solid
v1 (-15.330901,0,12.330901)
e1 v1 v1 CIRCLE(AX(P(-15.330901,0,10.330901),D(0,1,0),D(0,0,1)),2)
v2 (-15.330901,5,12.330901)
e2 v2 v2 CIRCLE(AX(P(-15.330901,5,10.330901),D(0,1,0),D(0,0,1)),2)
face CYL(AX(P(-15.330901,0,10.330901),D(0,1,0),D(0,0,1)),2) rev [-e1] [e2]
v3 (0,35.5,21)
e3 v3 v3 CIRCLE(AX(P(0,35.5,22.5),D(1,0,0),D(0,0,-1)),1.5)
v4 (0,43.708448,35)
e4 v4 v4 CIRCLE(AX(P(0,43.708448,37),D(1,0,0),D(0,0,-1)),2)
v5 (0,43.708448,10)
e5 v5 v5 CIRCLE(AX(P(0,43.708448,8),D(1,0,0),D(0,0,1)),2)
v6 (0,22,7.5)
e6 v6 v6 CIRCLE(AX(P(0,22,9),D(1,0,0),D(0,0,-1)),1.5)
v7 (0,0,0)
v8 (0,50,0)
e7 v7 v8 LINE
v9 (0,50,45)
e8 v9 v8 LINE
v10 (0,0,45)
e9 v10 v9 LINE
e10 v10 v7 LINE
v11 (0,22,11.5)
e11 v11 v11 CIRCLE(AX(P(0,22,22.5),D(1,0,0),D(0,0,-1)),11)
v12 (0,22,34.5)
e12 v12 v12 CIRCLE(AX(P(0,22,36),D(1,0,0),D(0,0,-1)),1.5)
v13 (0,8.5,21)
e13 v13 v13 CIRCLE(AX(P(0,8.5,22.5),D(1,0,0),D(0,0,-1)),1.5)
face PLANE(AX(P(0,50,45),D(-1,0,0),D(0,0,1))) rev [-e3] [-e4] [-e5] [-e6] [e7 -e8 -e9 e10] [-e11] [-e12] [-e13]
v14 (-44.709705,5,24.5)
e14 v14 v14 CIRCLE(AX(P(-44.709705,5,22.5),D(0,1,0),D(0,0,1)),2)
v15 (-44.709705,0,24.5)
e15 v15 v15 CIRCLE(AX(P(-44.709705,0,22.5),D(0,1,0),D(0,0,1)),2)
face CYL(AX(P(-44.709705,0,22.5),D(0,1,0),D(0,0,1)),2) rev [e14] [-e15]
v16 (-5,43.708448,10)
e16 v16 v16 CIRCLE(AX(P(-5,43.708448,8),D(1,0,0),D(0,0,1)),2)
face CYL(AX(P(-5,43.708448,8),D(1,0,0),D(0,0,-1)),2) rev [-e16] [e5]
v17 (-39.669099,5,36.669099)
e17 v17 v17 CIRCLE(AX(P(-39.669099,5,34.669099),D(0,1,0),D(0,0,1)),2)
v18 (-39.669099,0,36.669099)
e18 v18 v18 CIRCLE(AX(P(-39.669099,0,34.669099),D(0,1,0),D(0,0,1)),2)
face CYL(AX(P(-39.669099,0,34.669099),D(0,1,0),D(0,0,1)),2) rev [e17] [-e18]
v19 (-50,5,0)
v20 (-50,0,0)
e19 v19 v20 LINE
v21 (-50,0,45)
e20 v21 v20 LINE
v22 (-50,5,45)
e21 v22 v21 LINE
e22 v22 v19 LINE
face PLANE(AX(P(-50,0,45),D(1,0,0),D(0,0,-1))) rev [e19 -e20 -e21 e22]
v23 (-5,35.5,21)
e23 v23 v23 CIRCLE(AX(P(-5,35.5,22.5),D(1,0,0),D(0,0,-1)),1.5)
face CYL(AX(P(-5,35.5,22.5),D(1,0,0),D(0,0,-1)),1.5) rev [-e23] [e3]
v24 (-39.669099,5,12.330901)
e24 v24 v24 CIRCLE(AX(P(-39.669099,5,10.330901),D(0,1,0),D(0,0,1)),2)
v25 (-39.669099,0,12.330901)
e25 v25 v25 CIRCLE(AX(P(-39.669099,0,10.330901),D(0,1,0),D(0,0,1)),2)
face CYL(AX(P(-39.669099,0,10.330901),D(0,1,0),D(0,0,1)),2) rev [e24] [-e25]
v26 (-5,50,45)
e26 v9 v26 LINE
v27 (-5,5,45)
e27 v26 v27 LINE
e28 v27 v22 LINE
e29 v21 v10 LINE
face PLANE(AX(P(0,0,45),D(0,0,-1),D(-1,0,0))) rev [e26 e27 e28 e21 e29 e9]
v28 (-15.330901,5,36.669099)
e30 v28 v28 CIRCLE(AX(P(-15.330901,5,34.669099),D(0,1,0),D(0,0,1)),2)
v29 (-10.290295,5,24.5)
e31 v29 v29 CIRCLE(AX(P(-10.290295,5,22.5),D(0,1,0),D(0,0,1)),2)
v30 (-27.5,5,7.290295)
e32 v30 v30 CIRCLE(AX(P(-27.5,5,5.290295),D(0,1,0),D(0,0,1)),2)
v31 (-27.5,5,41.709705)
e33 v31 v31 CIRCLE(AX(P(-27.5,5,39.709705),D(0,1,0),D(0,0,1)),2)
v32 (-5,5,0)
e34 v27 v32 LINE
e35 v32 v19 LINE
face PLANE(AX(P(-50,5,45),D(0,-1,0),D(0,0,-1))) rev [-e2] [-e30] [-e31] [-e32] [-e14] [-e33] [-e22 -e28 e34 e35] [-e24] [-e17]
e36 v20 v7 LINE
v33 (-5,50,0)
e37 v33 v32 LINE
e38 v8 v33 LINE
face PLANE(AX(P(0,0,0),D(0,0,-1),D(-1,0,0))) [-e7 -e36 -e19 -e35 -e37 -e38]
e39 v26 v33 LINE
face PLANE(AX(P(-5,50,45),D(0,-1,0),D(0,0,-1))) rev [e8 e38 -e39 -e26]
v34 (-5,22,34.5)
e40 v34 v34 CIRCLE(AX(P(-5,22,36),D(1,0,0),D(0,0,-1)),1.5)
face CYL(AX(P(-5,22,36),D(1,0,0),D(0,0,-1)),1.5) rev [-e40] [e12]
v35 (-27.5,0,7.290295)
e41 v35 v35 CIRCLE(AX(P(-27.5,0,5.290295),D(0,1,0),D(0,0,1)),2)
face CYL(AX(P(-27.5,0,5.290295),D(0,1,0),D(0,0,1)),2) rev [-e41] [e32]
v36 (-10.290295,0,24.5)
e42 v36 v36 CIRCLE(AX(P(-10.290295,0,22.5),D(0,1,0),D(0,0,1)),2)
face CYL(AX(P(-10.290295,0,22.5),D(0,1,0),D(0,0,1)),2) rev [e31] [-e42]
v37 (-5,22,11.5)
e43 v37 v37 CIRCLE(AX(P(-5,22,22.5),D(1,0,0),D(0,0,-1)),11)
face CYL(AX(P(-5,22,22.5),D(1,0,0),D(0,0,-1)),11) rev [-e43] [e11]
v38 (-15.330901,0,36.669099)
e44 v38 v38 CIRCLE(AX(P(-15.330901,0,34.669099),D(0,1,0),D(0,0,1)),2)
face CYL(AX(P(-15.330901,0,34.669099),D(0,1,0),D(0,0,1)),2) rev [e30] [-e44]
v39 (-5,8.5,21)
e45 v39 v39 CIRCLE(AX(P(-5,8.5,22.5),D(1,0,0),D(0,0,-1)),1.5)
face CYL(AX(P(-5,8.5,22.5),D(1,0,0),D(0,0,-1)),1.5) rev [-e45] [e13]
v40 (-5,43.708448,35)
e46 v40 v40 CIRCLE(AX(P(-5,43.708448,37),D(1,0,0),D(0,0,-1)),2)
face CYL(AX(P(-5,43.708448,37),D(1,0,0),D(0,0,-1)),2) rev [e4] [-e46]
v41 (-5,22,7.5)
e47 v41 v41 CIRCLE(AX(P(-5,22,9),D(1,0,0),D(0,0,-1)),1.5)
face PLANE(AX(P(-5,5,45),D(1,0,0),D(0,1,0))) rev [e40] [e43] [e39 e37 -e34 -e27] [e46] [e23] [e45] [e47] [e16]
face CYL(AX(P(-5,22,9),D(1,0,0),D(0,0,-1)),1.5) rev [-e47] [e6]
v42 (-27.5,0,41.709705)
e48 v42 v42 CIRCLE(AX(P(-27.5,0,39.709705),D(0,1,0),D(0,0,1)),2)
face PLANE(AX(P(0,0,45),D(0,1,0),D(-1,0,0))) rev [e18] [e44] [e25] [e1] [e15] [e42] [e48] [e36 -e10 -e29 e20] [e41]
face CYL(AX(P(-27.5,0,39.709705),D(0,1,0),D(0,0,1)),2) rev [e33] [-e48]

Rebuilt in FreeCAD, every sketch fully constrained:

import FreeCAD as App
import Part
import Sketcher
Q = App.Units.Quantity


def add_polygon(sketch, points):
    """Adds a closed chain of lines whose ends are joined by coincident constraints."""
    first, n = sketch.GeometryCount, len(points)
    for a, b in zip(points, points[1:] + points[:1]):
        sketch.addGeometry(Part.LineSegment(App.Vector(*a, 0), App.Vector(*b, 0)), False)
    for i in range(n):
        sketch.addConstraint(Sketcher.Constraint("Coincident", first + i, 2, first + (i + 1) % n, 1))

doc = App.newDocument("Part")
body = doc.addObject("PartDesign::Body", "Body")

sketch1 = body.newObject("Sketcher::SketchObject", "Sketch")
sketch1.AttachmentSupport = (doc.getObject("XY_Plane"), [""])
sketch1.MapMode = "FlatFace"
add_polygon(sketch1, [(0, 0), (0, 50), (-5, 50), (-5, 5), (-50, 5), (-50, 0)])
sketch1.addConstraint([
    Sketcher.Constraint("Vertical", 0),
    Sketcher.Constraint("Horizontal", 1),
    Sketcher.Constraint("Vertical", 2),
    Sketcher.Constraint("Horizontal", 3),
    Sketcher.Constraint("Vertical", 4),
    Sketcher.Constraint("Horizontal", 5),
    Sketcher.Constraint("Coincident", 5, 2, -1, 1),
    Sketcher.Constraint("Equal", 5, 0),
    Sketcher.Constraint("Equal", 3, 2),
    Sketcher.Constraint("DistanceX", 1, 2, 1, 1, Q("5 mm")),
    Sketcher.Constraint("DistanceX", 3, 2, 3, 1, Q("45 mm")),
])
pad1 = body.newObject("PartDesign::Pad", "Pad")
pad1.Profile = sketch1
pad1.Length = 45

sketch2 = body.newObject("Sketcher::SketchObject", "Sketch001")
sketch2.AttachmentSupport = (doc.getObject("YZ_Plane"), [""])
sketch2.MapMode = "FlatFace"
sketch2.addGeometry(Part.Circle(App.Vector(22, 22.5, 0), App.Vector(0, 0, 1), 11), False)
sketch2.addConstraint([
    Sketcher.Constraint("Diameter", 0, Q("22 mm")),
    Sketcher.Constraint("DistanceX", -1, 1, 0, 3, Q("22 mm")),
    Sketcher.Constraint("DistanceY", -1, 1, 0, 3, Q("22.5 mm")),
])
pocket1 = body.newObject("PartDesign::Pocket", "Pocket")
pocket1.Profile = sketch2
pocket1.Length = 5

sketch3 = body.newObject("Sketcher::SketchObject", "Sketch002")
sketch3.AttachmentSupport = (doc.getObject("YZ_Plane"), [""])
sketch3.MapMode = "FlatFace"
sketch3.addGeometry([
    Part.Circle(App.Vector(35.5, 22.5, 0), App.Vector(0, 0, 1), 1.5),
    Part.Circle(App.Vector(22, 9, 0), App.Vector(0, 0, 1), 1.5),
    Part.Circle(App.Vector(8.5, 22.5, 0), App.Vector(0, 0, 1), 1.5),
    Part.Circle(App.Vector(22, 36, 0), App.Vector(0, 0, 1), 1.5),
], False)
sketch3.addConstraint([
    Sketcher.Constraint("Equal", 0, 1),
    Sketcher.Constraint("Equal", 1, 2),
    Sketcher.Constraint("Equal", 2, 3),
    Sketcher.Constraint("Horizontal", 0, 3, 2, 3),
    Sketcher.Constraint("Vertical", 1, 3, 3, 3),
    Sketcher.Constraint("Diameter", 0, Q("3 mm")),
    Sketcher.Constraint("DistanceX", -1, 1, 1, 3, Q("22 mm")),
    Sketcher.Constraint("DistanceY", -1, 1, 1, 3, Q("9 mm")),
    Sketcher.Constraint("DistanceY", -1, 1, 3, 3, Q("36 mm")),
    Sketcher.Constraint("DistanceX", 2, 3, 0, 3, Q("27 mm")),
    Sketcher.Constraint("DistanceX", -1, 1, 0, 3, Q("35.5 mm")),
    Sketcher.Constraint("DistanceY", -1, 1, 0, 3, Q("22.5 mm")),
])
pocket2 = body.newObject("PartDesign::Pocket", "Pocket001")
pocket2.Profile = sketch3
pocket2.Length = 5

sketch4 = body.newObject("Sketcher::SketchObject", "Sketch003")
sketch4.AttachmentSupport = (doc.getObject("XZ_Plane"), [""])
sketch4.MapMode = "FlatFace"
sketch4.AttachmentOffset = App.Placement(App.Vector(0, 0, -5), App.Rotation())
sketch4.addGeometry([
    Part.Circle(App.Vector(-27.5, 5.290295, 0), App.Vector(0, 0, 1), 2),
    Part.Circle(App.Vector(-15.330901, 10.330901, 0), App.Vector(0, 0, 1), 2),
    Part.Circle(App.Vector(-10.290295, 22.5, 0), App.Vector(0, 0, 1), 2),
    Part.Circle(App.Vector(-15.330901, 34.669099, 0), App.Vector(0, 0, 1), 2),
    Part.Circle(App.Vector(-27.5, 39.709705, 0), App.Vector(0, 0, 1), 2),
    Part.Circle(App.Vector(-39.669099, 34.669099, 0), App.Vector(0, 0, 1), 2),
    Part.Circle(App.Vector(-44.709705, 22.5, 0), App.Vector(0, 0, 1), 2),
    Part.Circle(App.Vector(-39.669099, 10.330901, 0), App.Vector(0, 0, 1), 2),
], False)
sketch4.addConstraint([
    Sketcher.Constraint("Equal", 0, 1),
    Sketcher.Constraint("Equal", 1, 2),
    Sketcher.Constraint("Equal", 2, 3),
    Sketcher.Constraint("Equal", 3, 4),
    Sketcher.Constraint("Equal", 4, 5),
    Sketcher.Constraint("Equal", 5, 6),
    Sketcher.Constraint("Equal", 6, 7),
    Sketcher.Constraint("Horizontal", 3, 3, 5, 3),
    Sketcher.Constraint("Horizontal", 2, 3, 6, 3),
    Sketcher.Constraint("Horizontal", 1, 3, 7, 3),
    Sketcher.Constraint("Vertical", 1, 3, 3, 3),
    Sketcher.Constraint("Vertical", 0, 3, 4, 3),
    Sketcher.Constraint("Vertical", 5, 3, 7, 3),
    Sketcher.Constraint("Diameter", 0, Q("4 mm")),
    Sketcher.Constraint("DistanceX", 0, 3, -1, 1, Q("27.5 mm")),
    Sketcher.Constraint("DistanceY", -1, 1, 2, 3, Q("22.5 mm")),
    Sketcher.Constraint("DistanceX", 1, 3, -1, 1, Q("15.330901 mm")),
    Sketcher.Constraint("DistanceY", -1, 1, 1, 3, Q("10.330901 mm")),
    Sketcher.Constraint("DistanceY", -1, 1, 3, 3, Q("34.669099 mm")),
    Sketcher.Constraint("DistanceX", 5, 3, -1, 1, Q("39.669099 mm")),
    Sketcher.Constraint("DistanceY", 0, 3, 4, 3, Q("34.41941 mm")),
    Sketcher.Constraint("DistanceY", -1, 1, 0, 3, Q("5.290295 mm")),
    Sketcher.Constraint("DistanceX", 2, 3, -1, 1, Q("10.290295 mm")),
    Sketcher.Constraint("DistanceX", 6, 3, -1, 1, Q("44.709705 mm")),
])
pocket3 = body.newObject("PartDesign::Pocket", "Pocket002")
pocket3.Profile = sketch4
pocket3.Length = 5
pocket3.Reversed = True

sketch5 = body.newObject("Sketcher::SketchObject", "Sketch004")
sketch5.AttachmentSupport = (doc.getObject("YZ_Plane"), [""])
sketch5.MapMode = "FlatFace"
sketch5.addGeometry([
    Part.Circle(App.Vector(43.708448, 37, 0), App.Vector(0, 0, 1), 2),
    Part.Circle(App.Vector(43.708448, 8, 0), App.Vector(0, 0, 1), 2),
], False)
sketch5.addConstraint([
    Sketcher.Constraint("Equal", 0, 1),
    Sketcher.Constraint("Vertical", 0, 3, 1, 3),
    Sketcher.Constraint("Diameter", 0, Q("4 mm")),
    Sketcher.Constraint("DistanceY", -1, 1, 0, 3, Q("37 mm")),
    Sketcher.Constraint("DistanceY", -1, 1, 1, 3, Q("8 mm")),
    Sketcher.Constraint("DistanceX", -1, 1, 0, 3, Q("43.708448 mm")),
])
pocket4 = body.newObject("PartDesign::Pocket", "Pocket003")
pocket4.Profile = sketch5
pocket4.Length = 5

doc.recompute()
